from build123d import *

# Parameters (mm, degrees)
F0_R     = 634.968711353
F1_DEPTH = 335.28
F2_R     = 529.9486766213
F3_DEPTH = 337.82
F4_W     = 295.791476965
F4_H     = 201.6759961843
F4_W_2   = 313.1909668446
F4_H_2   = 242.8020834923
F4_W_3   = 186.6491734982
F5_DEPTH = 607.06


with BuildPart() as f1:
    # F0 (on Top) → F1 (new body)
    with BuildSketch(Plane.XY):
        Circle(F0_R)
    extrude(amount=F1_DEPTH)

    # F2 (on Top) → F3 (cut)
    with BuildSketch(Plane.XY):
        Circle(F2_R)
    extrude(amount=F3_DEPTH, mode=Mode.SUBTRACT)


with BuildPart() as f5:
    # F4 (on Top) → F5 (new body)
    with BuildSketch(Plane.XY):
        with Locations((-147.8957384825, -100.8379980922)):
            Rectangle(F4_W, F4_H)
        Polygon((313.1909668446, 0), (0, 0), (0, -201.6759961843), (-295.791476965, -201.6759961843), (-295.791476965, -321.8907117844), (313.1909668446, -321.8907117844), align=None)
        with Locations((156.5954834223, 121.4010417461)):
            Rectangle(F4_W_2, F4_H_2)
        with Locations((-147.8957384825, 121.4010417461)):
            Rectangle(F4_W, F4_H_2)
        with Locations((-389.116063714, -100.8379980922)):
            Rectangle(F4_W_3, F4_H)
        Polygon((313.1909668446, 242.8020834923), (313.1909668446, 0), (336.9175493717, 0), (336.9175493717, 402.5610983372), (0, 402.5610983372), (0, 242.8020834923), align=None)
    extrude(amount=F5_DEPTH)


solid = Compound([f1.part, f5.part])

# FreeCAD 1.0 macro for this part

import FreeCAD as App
import Part
import Sketcher
from FreeCAD import Vector
Q = App.Units.Quantity


def add_polygon(sketch, points):
    """Adds a closed chain of lines whose ends are joined by coincident constraints."""
    first, n = sketch.GeometryCount, len(points)
    for a, b in zip(points, points[1:] + points[:1]):
        sketch.addGeometry(Part.LineSegment(App.Vector(*a, 0), App.Vector(*b, 0)), False)
    for i in range(n):
        sketch.addConstraint(Sketcher.Constraint("Coincident", first + i, 2, first + (i + 1) % n, 1))

doc = App.newDocument("Part")
body = doc.addObject("PartDesign::Body", "Body")

# Sketch on XY plane
sketch1 = body.newObject("Sketcher::SketchObject", "Sketch")
sketch1.AttachmentSupport = (doc.getObject("XY_Plane"), [""])
sketch1.MapMode = "FlatFace"
sketch1.addGeometry(Part.Circle(Vector(0, 0, 0), Vector(0, 0, 1), 634.968711), False)
sketch1.addConstraint(Sketcher.Constraint("Coincident", 0, 3, -1, 1))
sketch1.addConstraint(Sketcher.Constraint("Diameter", 0, Q("1269.937423 mm")))
pad1 = body.newObject("PartDesign::Pad", "Pad")
pad1.Profile = sketch1
pad1.Length = Q("13.2 in")

# Sketch on XY plane
sketch2 = body.newObject("Sketcher::SketchObject", "Sketch001")
sketch2.AttachmentSupport = (doc.getObject("XY_Plane"), [""])
sketch2.MapMode = "FlatFace"
sketch2.addGeometry(Part.Circle(Vector(0, 0, 0), Vector(0, 0, 1), 529.948677), False)
sketch2.addConstraint(Sketcher.Constraint("Coincident", 0, 3, -1, 1))
sketch2.addConstraint(Sketcher.Constraint("Diameter", 0, Q("1059.897353 mm")))
pocket1 = body.newObject("PartDesign::Pocket", "Pocket")
pocket1.Profile = sketch2
pocket1.Length = Q("13.3 in")
pocket1.Reversed = True
body2 = doc.addObject("PartDesign::Body", "Body001")

# Sketch on XY plane
sketch3 = body2.newObject("Sketcher::SketchObject", "Sketch002")
sketch3.AttachmentSupport = (doc.getObject("XY_Plane001"), [""])
sketch3.MapMode = "FlatFace"
add_polygon(sketch3, [(-295.791477, -321.890712), (313.190967, -321.890712), (313.190967, 0), (336.917549, 0), (336.917549, 402.561098), (0, 402.561098), (0, 242.802083), (-295.791477, 242.802083), (-295.791477, 0), (-482.44065, 0), (-482.44065, -201.675996), (-295.791477, -201.675996)])  # lines 0-11
sketch3.addConstraint(Sketcher.Constraint("Horizontal", 0))
sketch3.addConstraint(Sketcher.Constraint("Vertical", 1))
sketch3.addConstraint(Sketcher.Constraint("Horizontal", 2))
sketch3.addConstraint(Sketcher.Constraint("Vertical", 3))
sketch3.addConstraint(Sketcher.Constraint("Horizontal", 4))
sketch3.addConstraint(Sketcher.Constraint("Vertical", 5))
sketch3.addConstraint(Sketcher.Constraint("Horizontal", 6))
sketch3.addConstraint(Sketcher.Constraint("Vertical", 7))
sketch3.addConstraint(Sketcher.Constraint("Horizontal", 8))
sketch3.addConstraint(Sketcher.Constraint("Vertical", 9))
sketch3.addConstraint(Sketcher.Constraint("Horizontal", 10))
sketch3.addConstraint(Sketcher.Constraint("Vertical", 11))
sketch3.addConstraint(Sketcher.Constraint("PointOnObject", 1, 2, -1))
sketch3.addConstraint(Sketcher.Constraint("PointOnObject", 4, 2, -2))
sketch3.addConstraint(Sketcher.Constraint("PointOnObject", 7, 2, -1))
sketch3.addConstraint(Sketcher.Constraint("Vertical", 7, 2, 10, 2))
sketch3.addConstraint(Sketcher.Constraint("DistanceY", 9, 2, 9, 1, Q("7.9399998 in")))
sketch3.addConstraint(Sketcher.Constraint("DistanceY", 0, 2, 5, 2, Q("22.2319998 in")))
sketch3.addConstraint(Sketcher.Constraint("DistanceY", 3, 1, 3, 2, Q("402.561098 mm")))
sketch3.addConstraint(Sketcher.Constraint("DistanceX", 4, 2, 4, 1, Q("336.917549 mm")))
sketch3.addConstraint(Sketcher.Constraint("DistanceY", 1, 1, 1, 2, Q("321.890712 mm")))
sketch3.addConstraint(Sketcher.Constraint("DistanceX", 0, 1, 0, 2, Q("608.982444 mm")))
sketch3.addConstraint(Sketcher.Constraint("DistanceX", 2, 1, 2, 2, Q("23.726583 mm")))
sketch3.addConstraint(Sketcher.Constraint("DistanceX", 8, 2, 8, 1, Q("186.649173 mm")))
pad2 = body2.newObject("PartDesign::Pad", "Pad001")
pad2.Profile = sketch3
pad2.Length = Q("23.9 in")

doc.recompute()
